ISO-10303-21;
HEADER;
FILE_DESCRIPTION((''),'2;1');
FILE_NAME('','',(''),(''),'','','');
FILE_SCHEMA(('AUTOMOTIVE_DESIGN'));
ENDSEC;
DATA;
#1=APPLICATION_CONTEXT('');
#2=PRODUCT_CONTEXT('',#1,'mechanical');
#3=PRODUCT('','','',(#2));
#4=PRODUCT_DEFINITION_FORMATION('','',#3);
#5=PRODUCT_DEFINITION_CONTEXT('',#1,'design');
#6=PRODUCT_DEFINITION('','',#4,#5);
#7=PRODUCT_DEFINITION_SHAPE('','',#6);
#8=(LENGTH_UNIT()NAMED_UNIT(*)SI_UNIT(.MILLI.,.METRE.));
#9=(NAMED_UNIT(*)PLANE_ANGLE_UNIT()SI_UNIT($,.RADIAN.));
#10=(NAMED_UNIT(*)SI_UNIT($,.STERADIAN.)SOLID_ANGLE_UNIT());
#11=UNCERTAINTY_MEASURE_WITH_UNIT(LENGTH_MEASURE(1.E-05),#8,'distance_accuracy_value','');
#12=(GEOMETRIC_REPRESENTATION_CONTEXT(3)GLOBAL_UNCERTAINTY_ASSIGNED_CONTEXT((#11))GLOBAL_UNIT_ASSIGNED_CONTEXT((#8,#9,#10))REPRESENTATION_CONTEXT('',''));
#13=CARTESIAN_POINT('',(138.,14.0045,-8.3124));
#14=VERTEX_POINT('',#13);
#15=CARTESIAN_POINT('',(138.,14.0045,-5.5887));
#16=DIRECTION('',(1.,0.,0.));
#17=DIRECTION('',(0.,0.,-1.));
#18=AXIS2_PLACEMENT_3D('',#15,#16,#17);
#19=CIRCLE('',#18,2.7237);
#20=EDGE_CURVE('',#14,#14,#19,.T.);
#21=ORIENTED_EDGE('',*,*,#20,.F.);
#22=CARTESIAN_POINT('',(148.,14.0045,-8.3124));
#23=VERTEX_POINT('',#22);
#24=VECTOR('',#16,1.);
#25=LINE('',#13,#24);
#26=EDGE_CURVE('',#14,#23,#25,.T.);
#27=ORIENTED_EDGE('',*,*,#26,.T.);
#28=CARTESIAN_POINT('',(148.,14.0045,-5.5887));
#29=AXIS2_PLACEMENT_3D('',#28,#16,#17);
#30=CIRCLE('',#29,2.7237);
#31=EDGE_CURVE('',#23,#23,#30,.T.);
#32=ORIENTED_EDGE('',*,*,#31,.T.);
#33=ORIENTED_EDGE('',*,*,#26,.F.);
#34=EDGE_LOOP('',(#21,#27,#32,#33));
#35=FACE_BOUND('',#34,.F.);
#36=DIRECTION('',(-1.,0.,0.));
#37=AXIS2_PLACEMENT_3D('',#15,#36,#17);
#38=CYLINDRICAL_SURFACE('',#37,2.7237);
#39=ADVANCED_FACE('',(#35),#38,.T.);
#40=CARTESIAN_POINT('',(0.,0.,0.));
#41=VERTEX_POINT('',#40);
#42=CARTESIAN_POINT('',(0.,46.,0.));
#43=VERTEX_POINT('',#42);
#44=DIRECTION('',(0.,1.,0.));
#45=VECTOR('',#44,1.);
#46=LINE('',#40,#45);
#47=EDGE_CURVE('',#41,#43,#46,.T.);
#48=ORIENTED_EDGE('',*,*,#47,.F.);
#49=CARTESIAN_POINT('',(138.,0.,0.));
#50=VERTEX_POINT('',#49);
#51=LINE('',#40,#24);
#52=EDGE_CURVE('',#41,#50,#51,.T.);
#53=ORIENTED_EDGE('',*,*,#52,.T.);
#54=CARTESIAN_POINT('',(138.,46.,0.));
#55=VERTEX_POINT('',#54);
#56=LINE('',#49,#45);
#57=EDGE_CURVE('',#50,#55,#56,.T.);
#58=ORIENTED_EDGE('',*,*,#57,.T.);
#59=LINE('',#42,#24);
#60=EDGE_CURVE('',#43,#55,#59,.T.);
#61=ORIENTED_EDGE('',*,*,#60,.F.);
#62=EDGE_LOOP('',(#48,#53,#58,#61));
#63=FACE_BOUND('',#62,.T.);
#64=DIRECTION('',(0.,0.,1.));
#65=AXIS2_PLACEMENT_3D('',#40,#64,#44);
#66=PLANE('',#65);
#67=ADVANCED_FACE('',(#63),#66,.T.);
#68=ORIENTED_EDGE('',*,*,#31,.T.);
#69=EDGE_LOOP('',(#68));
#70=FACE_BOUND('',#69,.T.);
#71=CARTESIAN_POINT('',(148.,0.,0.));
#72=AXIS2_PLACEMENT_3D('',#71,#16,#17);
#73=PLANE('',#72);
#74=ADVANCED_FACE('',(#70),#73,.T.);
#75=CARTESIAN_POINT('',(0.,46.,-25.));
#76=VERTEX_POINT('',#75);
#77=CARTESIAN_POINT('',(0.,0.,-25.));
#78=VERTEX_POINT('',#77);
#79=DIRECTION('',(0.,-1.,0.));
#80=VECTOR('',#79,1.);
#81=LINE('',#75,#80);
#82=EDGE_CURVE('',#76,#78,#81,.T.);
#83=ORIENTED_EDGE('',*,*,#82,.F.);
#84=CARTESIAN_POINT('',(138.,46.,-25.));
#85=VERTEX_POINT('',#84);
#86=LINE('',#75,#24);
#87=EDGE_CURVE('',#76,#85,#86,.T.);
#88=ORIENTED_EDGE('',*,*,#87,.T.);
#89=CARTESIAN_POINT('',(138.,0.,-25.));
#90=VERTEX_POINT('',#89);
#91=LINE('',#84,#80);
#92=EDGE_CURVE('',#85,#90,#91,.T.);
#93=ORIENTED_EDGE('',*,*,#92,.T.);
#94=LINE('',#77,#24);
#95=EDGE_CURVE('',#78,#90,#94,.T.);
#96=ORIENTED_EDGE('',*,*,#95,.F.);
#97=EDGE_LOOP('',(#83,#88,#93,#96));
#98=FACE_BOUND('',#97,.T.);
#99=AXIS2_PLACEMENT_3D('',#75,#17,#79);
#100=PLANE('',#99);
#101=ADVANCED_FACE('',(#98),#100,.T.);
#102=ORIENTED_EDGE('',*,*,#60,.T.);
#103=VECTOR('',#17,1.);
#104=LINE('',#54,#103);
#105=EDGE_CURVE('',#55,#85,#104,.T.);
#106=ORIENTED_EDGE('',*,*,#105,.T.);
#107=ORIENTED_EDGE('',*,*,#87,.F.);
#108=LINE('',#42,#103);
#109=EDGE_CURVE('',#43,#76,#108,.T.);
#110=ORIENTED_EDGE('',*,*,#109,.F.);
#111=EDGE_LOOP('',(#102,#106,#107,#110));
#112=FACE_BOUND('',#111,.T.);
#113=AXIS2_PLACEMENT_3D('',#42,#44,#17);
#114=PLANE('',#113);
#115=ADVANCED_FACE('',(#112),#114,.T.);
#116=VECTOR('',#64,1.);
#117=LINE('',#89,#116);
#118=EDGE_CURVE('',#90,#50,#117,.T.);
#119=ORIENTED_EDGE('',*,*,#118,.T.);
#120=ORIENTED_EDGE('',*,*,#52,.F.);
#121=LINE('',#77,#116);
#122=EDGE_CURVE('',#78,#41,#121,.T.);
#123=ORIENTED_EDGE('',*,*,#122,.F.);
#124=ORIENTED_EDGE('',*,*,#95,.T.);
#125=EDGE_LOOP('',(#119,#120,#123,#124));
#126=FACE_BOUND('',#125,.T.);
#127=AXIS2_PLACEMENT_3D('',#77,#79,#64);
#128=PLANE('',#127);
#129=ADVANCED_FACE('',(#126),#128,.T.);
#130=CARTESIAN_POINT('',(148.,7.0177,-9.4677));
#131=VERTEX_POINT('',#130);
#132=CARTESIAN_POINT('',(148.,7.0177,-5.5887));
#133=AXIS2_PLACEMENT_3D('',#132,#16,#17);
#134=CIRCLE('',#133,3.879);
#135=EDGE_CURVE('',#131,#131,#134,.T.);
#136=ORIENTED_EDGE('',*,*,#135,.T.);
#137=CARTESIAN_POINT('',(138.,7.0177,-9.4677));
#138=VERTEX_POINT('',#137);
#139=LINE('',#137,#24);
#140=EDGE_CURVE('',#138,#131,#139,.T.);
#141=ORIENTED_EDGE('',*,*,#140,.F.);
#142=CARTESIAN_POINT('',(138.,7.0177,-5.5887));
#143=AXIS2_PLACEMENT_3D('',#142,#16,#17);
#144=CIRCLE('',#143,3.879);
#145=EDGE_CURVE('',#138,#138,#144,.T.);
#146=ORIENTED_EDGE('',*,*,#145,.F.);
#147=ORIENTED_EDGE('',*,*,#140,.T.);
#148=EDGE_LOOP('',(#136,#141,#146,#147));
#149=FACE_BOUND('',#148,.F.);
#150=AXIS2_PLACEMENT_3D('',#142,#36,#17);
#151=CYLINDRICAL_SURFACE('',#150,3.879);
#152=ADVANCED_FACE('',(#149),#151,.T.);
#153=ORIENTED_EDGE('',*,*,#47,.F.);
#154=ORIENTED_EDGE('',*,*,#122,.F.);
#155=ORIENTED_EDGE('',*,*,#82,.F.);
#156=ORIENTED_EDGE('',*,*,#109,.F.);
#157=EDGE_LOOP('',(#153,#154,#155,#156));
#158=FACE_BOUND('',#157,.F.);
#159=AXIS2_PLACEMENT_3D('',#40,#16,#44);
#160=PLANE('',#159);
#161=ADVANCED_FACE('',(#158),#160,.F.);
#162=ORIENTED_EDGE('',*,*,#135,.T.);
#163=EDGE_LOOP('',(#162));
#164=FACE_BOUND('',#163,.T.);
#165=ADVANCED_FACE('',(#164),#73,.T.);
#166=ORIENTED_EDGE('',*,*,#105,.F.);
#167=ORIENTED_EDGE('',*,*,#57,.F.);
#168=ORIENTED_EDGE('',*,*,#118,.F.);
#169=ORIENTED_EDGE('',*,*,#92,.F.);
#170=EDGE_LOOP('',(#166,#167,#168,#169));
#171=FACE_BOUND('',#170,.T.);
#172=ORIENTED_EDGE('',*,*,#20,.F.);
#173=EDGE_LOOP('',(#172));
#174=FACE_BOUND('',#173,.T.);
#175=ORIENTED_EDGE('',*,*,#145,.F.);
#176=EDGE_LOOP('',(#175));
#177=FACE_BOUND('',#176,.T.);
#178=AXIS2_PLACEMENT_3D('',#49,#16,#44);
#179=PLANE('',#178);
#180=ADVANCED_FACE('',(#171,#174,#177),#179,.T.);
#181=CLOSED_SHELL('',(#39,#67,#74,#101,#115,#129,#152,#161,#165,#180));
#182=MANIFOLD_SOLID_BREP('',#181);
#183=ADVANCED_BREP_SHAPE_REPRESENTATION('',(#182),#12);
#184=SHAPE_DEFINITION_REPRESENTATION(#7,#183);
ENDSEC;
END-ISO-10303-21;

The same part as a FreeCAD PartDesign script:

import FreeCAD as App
import Part
import Sketcher
Q = App.Units.Quantity


def add_polygon(sketch, points):
    """Adds a closed chain of lines whose ends are joined by coincident constraints."""
    first, n = sketch.GeometryCount, len(points)
    for a, b in zip(points, points[1:] + points[:1]):
        sketch.addGeometry(Part.LineSegment(App.Vector(*a, 0), App.Vector(*b, 0)), False)
    for i in range(n):
        sketch.addConstraint(Sketcher.Constraint("Coincident", first + i, 2, first + (i + 1) % n, 1))

doc = App.newDocument("Part")
body = doc.addObject("PartDesign::Body", "Body")

sketch1 = doc.addObject("Sketcher::SketchObject", "Sketch")
body.addObject(sketch1)
sketch1.AttachmentSupport = (doc.YZ_Plane, [""])
sketch1.MapMode = "FlatFace"
add_polygon(sketch1, [(46, 0), (0, 0), (0, -25), (46, -25)])
sketch1.addConstraint([
    Sketcher.Constraint("Horizontal", 0),
    Sketcher.Constraint("Vertical", 1),
    Sketcher.Constraint("Horizontal", 2),
    Sketcher.Constraint("Vertical", 3),
    Sketcher.Constraint("Coincident", 0, 2, -1, 1),
    Sketcher.Constraint("DistanceX", 0, 2, 0, 1, Q("46 mm")),
    Sketcher.Constraint("DistanceY", 1, 2, 1, 1, Q("25 mm")),
])
pad1 = doc.addObject("PartDesign::Pad", "Pad")
body.addObject(pad1)
pad1.Profile = sketch1
pad1.Length = 138

sketch2 = doc.addObject("Sketcher::SketchObject", "Sketch001")
body.addObject(sketch2)
sketch2.AttachmentSupport = (doc.YZ_Plane, [""])
sketch2.MapMode = "FlatFace"
sketch2.AttachmentOffset = App.Placement(App.Vector(0, 0, 138), App.Rotation())
sketch2.addGeometry([
    Part.Circle(App.Vector(7.0177, -5.5887, 0), App.Vector(0, 0, 1), 3.879),
    Part.Circle(App.Vector(14.0045, -5.5887, 0), App.Vector(0, 0, 1), 2.7237),
], False)
sketch2.addConstraint([
    Sketcher.Constraint("Horizontal", 0, 3, 1, 3),
    Sketcher.Constraint("Diameter", 0, Q("7.758 mm")),
    Sketcher.Constraint("Diameter", 1, Q("5.4474 mm")),
    Sketcher.Constraint("DistanceX", -1, 1, 0, 3, Q("7.0177 mm")),
    Sketcher.Constraint("DistanceY", 0, 3, -1, 1, Q("5.5887 mm")),
    Sketcher.Constraint("DistanceX", -1, 1, 1, 3, Q("14.0045 mm")),
])
pad2 = doc.addObject("PartDesign::Pad", "Pad001")
body.addObject(pad2)
pad2.Profile = sketch2
pad2.Length = 10

doc.recompute()
